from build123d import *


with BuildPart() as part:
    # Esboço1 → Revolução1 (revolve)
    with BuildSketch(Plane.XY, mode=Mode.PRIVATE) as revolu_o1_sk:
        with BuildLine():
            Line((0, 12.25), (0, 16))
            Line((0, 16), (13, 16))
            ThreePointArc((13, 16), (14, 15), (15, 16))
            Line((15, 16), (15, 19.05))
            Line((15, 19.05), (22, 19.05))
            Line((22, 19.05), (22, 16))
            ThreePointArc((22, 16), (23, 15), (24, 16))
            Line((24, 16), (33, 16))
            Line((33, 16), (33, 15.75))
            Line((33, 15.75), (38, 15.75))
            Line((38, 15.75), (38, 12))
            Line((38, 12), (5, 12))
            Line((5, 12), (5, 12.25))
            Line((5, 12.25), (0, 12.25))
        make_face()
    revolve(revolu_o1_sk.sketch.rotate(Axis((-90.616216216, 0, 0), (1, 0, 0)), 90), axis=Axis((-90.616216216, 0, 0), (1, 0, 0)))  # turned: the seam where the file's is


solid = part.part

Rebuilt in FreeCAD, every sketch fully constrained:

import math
import FreeCAD as App
import Part
import Sketcher
Q = App.Units.Quantity

doc = App.newDocument("Part")
body = doc.addObject("PartDesign::Body", "Body")

# Sketch on XY plane
sketch1 = doc.addObject("Sketcher::SketchObject", "Sketch")
body.addObject(sketch1)
sketch1.AttachmentSupport = (doc.XY_Plane, [""])
sketch1.MapMode = "FlatFace"
sketch1.addGeometry([
    Part.LineSegment(App.Vector(0, 16, 0), App.Vector(0, 12.25, 0)),  # 0
    Part.LineSegment(App.Vector(0, 12.25, 0), App.Vector(5, 12.25, 0)),  # 1
    Part.LineSegment(App.Vector(5, 12.25, 0), App.Vector(5, 12, 0)),  # 2
    Part.LineSegment(App.Vector(5, 12, 0), App.Vector(38, 12, 0)),  # 3
    Part.LineSegment(App.Vector(38, 12, 0), App.Vector(38, 15.75, 0)),  # 4
    Part.LineSegment(App.Vector(38, 15.75, 0), App.Vector(33, 15.75, 0)),  # 5
    Part.LineSegment(App.Vector(33, 15.75, 0), App.Vector(33, 16, 0)),  # 6
    Part.LineSegment(App.Vector(33, 16, 0), App.Vector(24, 16, 0)),  # 7
    Part.ArcOfCircle(Part.Circle(App.Vector(23, 16, 0), App.Vector(0, 0, 1), 1), math.radians(180), math.radians(360)),  # 8
    Part.LineSegment(App.Vector(22, 16, 0), App.Vector(22, 19.05, 0)),  # 9
    Part.LineSegment(App.Vector(22, 19.05, 0), App.Vector(15, 19.05, 0)),  # 10
    Part.LineSegment(App.Vector(15, 19.05, 0), App.Vector(15, 16, 0)),  # 11
    Part.ArcOfCircle(Part.Circle(App.Vector(14, 16, 0), App.Vector(0, 0, 1), 1), math.radians(180), math.radians(360)),  # 12
    Part.LineSegment(App.Vector(13, 16, 0), App.Vector(0, 16, 0)),  # 13
], False)
sketch1.addConstraint([
    Sketcher.Constraint("Coincident", 0, 2, 1, 1),
    Sketcher.Constraint("Coincident", 1, 2, 2, 1),
    Sketcher.Constraint("Coincident", 2, 2, 3, 1),
    Sketcher.Constraint("Coincident", 3, 2, 4, 1),
    Sketcher.Constraint("Coincident", 4, 2, 5, 1),
    Sketcher.Constraint("Coincident", 5, 2, 6, 1),
    Sketcher.Constraint("Coincident", 6, 2, 7, 1),
    Sketcher.Constraint("Coincident", 7, 2, 8, 2),
    Sketcher.Constraint("Tangent", 8, 1, 9, 1),
    Sketcher.Constraint("Coincident", 9, 2, 10, 1),
    Sketcher.Constraint("Coincident", 10, 2, 11, 1),
    Sketcher.Constraint("Tangent", 11, 2, 12, 2),
    Sketcher.Constraint("Coincident", 12, 1, 13, 1),
    Sketcher.Constraint("Coincident", 13, 2, 0, 1),
    Sketcher.Constraint("Vertical", 0),
    Sketcher.Constraint("Horizontal", 1),
    Sketcher.Constraint("Vertical", 2),
    Sketcher.Constraint("Horizontal", 3),
    Sketcher.Constraint("Vertical", 4),
    Sketcher.Constraint("Horizontal", 5),
    Sketcher.Constraint("Vertical", 6),
    Sketcher.Constraint("Horizontal", 7),
    Sketcher.Constraint("Vertical", 9),
    Sketcher.Constraint("Horizontal", 10),
    Sketcher.Constraint("Vertical", 11),
    Sketcher.Constraint("Horizontal", 13),
    Sketcher.Constraint("Equal", 8, 12),
    Sketcher.Constraint("PointOnObject", 0, 2, -2),
    Sketcher.Constraint("Horizontal", 8, 3, 12, 3),
    Sketcher.Constraint("Horizontal", 12, 3, 6, 2),
    Sketcher.Constraint("Horizontal", 11, 2, 12, 1),
    Sketcher.Constraint("Equal", 1, 5),
    Sketcher.Constraint("Equal", 0, 4),
    Sketcher.Constraint("Radius", 8, Q("1 mm")),
    Sketcher.Constraint("DistanceX", 1, 1, 1, 2, Q("5 mm")),
    Sketcher.Constraint("DistanceX", 3, 1, 3, 2, Q("33 mm")),
    Sketcher.Constraint("DistanceX", 7, 2, 7, 1, Q("9 mm")),
    Sketcher.Constraint("DistanceX", 10, 2, 10, 1, Q("7 mm")),
    Sketcher.Constraint("DistanceY", -1, 1, 8, 3, Q("16 mm")),
    Sketcher.Constraint("DistanceY", -1, 1, 2, 2, Q("12 mm")),
    Sketcher.Constraint("DistanceY", 0, 2, 0, 1, Q("3.75 mm")),
    Sketcher.Constraint("DistanceY", 9, 1, 9, 2, Q("3.05 mm")),
])
revolution = doc.addObject("PartDesign::Revolution", "Revolution")
body.addObject(revolution)
revolution.Profile = sketch1
revolution.ReferenceAxis = (sketch1, ["H_Axis"])
revolution.Angle = 360

doc.recompute()
